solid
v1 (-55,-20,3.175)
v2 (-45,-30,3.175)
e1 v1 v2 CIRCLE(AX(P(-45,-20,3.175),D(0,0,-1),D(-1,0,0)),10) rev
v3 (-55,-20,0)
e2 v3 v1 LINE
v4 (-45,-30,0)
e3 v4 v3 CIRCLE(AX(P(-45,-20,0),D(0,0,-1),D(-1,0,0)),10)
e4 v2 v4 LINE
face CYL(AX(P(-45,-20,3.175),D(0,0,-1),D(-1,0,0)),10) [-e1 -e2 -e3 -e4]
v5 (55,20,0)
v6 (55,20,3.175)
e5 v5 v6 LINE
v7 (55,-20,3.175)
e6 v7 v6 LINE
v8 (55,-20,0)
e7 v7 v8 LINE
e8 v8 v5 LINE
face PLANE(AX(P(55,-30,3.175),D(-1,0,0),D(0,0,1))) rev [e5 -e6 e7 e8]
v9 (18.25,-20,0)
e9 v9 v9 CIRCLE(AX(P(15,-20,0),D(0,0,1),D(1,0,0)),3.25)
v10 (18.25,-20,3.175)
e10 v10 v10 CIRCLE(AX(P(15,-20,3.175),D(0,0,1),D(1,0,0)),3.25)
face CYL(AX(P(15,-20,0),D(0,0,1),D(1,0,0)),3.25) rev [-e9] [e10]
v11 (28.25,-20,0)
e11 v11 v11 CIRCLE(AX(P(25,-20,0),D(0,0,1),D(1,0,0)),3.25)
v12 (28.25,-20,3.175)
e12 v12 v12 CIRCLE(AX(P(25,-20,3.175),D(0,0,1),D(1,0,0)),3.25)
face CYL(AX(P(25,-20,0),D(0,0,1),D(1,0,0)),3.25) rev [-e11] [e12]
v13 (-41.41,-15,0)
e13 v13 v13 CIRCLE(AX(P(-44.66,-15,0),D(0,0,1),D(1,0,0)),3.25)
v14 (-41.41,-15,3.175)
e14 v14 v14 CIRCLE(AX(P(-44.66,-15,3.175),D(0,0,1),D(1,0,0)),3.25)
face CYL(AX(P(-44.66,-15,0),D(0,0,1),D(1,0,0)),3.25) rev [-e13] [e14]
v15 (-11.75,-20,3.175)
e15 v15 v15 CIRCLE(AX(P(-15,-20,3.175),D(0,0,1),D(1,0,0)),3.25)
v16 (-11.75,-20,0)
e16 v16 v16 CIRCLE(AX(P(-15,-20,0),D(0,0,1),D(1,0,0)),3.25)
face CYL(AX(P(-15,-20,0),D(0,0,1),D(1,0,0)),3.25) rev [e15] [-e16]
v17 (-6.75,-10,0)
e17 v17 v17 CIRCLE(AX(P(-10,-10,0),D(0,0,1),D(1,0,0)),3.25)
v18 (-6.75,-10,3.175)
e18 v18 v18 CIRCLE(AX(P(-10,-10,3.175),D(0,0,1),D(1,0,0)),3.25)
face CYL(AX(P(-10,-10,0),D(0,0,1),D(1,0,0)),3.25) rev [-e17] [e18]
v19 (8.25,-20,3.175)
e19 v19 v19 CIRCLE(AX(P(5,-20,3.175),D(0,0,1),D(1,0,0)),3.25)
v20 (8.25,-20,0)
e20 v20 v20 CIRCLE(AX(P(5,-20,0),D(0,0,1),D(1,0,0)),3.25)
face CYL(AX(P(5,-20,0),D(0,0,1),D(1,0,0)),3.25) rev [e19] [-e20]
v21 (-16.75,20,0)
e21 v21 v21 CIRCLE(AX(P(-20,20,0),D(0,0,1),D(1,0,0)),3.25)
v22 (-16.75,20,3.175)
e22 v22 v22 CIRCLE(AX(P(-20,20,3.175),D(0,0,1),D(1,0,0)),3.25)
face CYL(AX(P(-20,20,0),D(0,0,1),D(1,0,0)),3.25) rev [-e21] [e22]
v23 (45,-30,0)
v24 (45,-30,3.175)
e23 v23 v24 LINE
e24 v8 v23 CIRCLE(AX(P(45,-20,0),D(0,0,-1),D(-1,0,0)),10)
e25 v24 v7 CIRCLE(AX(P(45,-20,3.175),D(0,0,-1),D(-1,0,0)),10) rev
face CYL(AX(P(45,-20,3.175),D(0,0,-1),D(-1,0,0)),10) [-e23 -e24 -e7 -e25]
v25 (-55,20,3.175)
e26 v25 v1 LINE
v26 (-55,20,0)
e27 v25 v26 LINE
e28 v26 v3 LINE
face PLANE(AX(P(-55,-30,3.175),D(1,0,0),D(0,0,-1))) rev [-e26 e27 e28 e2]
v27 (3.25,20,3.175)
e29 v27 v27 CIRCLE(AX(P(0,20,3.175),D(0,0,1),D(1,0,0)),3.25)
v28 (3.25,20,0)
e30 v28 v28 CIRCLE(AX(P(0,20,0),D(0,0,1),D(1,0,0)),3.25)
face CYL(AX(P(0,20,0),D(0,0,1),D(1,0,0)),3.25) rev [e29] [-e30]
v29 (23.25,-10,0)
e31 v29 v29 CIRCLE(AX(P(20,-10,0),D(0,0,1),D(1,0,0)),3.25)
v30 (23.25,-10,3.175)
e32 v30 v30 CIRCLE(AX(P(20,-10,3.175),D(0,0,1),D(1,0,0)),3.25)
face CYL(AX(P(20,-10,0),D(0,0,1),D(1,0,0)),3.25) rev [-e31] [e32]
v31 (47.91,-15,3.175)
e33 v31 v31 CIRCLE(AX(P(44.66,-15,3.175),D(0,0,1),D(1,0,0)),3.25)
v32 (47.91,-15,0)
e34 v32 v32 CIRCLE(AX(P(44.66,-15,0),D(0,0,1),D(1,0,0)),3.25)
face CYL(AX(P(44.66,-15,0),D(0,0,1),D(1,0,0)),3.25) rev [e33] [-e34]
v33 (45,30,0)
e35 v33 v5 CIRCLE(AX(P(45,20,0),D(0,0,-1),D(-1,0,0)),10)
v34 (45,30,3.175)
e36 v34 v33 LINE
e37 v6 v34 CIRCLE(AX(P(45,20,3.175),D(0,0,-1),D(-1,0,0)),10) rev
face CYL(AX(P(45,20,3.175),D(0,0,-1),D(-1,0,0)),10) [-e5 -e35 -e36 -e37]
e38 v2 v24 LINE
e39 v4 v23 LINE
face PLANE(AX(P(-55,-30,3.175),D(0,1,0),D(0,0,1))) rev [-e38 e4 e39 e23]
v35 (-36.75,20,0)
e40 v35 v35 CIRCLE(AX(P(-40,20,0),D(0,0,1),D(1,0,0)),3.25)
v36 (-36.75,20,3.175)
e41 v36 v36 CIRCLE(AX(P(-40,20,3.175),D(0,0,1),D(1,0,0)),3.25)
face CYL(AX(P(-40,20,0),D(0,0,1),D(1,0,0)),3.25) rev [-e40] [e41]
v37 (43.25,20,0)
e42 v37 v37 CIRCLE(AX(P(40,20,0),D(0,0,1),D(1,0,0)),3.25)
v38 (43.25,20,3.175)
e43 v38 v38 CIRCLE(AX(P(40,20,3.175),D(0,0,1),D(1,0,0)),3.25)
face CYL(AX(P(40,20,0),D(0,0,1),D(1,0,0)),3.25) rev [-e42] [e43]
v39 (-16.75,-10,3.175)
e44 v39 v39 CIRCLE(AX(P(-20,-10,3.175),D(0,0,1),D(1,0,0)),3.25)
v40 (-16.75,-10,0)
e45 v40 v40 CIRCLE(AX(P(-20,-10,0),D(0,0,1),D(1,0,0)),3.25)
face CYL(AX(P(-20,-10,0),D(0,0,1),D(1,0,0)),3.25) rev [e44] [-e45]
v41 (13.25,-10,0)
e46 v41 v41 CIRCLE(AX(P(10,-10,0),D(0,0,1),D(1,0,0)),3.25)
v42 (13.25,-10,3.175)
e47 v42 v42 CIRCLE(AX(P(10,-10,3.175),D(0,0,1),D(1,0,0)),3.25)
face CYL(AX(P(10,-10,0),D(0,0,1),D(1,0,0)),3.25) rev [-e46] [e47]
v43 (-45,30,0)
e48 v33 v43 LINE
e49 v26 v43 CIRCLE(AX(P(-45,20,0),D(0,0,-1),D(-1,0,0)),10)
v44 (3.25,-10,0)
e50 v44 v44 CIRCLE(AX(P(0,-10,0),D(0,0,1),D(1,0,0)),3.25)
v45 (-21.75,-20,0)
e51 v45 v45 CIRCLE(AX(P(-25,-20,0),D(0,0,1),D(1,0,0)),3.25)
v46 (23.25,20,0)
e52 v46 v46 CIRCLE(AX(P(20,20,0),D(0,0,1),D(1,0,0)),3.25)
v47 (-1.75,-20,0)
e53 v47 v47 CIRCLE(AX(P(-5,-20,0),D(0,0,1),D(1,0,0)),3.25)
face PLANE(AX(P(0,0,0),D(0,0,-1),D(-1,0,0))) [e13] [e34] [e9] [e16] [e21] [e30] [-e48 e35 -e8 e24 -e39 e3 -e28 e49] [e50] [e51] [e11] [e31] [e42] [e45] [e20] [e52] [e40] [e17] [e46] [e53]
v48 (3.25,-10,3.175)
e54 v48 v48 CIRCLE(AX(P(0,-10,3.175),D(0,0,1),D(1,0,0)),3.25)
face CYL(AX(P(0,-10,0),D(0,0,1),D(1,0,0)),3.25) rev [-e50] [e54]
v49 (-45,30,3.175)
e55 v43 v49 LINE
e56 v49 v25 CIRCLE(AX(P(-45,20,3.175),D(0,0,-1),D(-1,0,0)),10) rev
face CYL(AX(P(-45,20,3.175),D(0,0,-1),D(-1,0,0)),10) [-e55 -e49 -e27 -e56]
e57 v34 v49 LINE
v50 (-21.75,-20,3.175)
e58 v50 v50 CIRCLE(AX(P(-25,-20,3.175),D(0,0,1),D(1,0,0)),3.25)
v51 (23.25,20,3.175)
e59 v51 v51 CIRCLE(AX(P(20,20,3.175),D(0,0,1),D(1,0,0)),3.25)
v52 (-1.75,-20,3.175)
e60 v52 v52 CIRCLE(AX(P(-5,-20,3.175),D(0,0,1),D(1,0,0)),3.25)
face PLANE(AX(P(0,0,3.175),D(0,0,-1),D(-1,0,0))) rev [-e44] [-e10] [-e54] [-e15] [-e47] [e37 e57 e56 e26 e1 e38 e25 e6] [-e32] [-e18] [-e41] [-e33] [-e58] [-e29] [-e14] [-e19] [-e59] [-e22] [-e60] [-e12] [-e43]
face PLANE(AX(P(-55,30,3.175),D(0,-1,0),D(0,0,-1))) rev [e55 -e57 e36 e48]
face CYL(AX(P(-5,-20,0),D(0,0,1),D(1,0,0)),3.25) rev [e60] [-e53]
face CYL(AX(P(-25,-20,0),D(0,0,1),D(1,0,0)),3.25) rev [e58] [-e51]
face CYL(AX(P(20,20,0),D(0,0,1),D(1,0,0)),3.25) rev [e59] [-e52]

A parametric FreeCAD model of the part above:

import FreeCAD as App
import Part
import Sketcher


def edges_at(feature, points):
    """Names of the edges that pass closest to the given points."""
    edges = feature.Shape.Edges
    near = lambda p: min(range(len(edges)), key=lambda i: edges[i].distToShape(Part.Vertex(*p))[0])
    return sorted({f"Edge{near(p) + 1}" for p in points})


def add_polygon(sketch, points):
    """Adds a closed chain of lines whose ends are joined by coincident constraints."""
    first, n = sketch.GeometryCount, len(points)
    for a, b in zip(points, points[1:] + points[:1]):
        sketch.addGeometry(Part.LineSegment(App.Vector(*a, 0), App.Vector(*b, 0)), False)
    for i in range(n):
        sketch.addConstraint(Sketcher.Constraint("Coincident", first + i, 2, first + (i + 1) % n, 1))

doc = App.newDocument("Part")
params = doc.addObject("Spreadsheet::Sheet", "Params")
for row, (alias, value) in enumerate([
    ("sketch1_width", "110 mm"),
    ("sketch1_height", "60 mm"),
    ("pad1_length", "3.175 mm"),
    ("sketch2_diameter", "6.5 mm"),
    ("fillet_radius", "10 mm"),
], start=1):
    params.set(f"A{row}", alias)
    params.set(f"B{row}", "=" + value)
    params.setAlias(f"B{row}", alias)

body = doc.addObject("PartDesign::Body", "Body")

sketch1 = doc.addObject("Sketcher::SketchObject", "Sketch")
body.addObject(sketch1)
sketch1.AttachmentSupport = (doc.XY_Plane, [""])
sketch1.MapMode = "FlatFace"
add_polygon(sketch1, [(-55, 30), (-55, -30), (55, -30), (55, 30)])
sketch1.addConstraint(Sketcher.Constraint("Vertical", 0))
sketch1.addConstraint(Sketcher.Constraint("Horizontal", 1))
sketch1.addConstraint(Sketcher.Constraint("Vertical", 2))
sketch1.addConstraint(Sketcher.Constraint("Horizontal", 3))
sketch1.addConstraint(Sketcher.Constraint("Symmetric", 0, 2, 2, 2, -1, 1))
sketch1.addConstraint(Sketcher.Constraint("DistanceX", 1, 1, 1, 2, 110.0))
sketch1.addConstraint(Sketcher.Constraint("DistanceY", 0, 2, 0, 1, 60.0))
sketch1.setExpression("Constraints[9]", "Params.sketch1_width")
sketch1.setExpression("Constraints[10]", "Params.sketch1_height")
pad1 = doc.addObject("PartDesign::Pad", "Pad")
body.addObject(pad1)
pad1.Profile = sketch1
pad1.setExpression("Length", "Params.pad1_length")

sketch2 = doc.addObject("Sketcher::SketchObject", "Sketch001")
body.addObject(sketch2)
sketch2.AttachmentSupport = (doc.XY_Plane, [""])
sketch2.MapMode = "FlatFace"
sketch2.AttachmentOffset = App.Placement(App.Vector(0, 0, 3.175), App.Rotation())
sketch2.addGeometry(Part.Circle(App.Vector(-40, 20, 0), App.Vector(0, 0, 1), 3.2), False)
sketch2.addGeometry(Part.Circle(App.Vector(40, 20, 0), App.Vector(0, 0, 1), 3.2), False)
sketch2.addGeometry(Part.Circle(App.Vector(-20, 20, 0), App.Vector(0, 0, 1), 3.2), False)
sketch2.addGeometry(Part.Circle(App.Vector(0, 20, 0), App.Vector(0, 0, 1), 3.2), False)
sketch2.addGeometry(Part.Circle(App.Vector(20, 20, 0), App.Vector(0, 0, 1), 3.2), False)
sketch2.addGeometry(Part.Circle(App.Vector(44.7, -15, 0), App.Vector(0, 0, 1), 3.2), False)
sketch2.addGeometry(Part.Circle(App.Vector(5, -20, 0), App.Vector(0, 0, 1), 3.2), False)
sketch2.addGeometry(Part.Circle(App.Vector(0, -10, 0), App.Vector(0, 0, 1), 3.2), False)
sketch2.addGeometry(Part.Circle(App.Vector(-5, -20, 0), App.Vector(0, 0, 1), 3.2), False)
sketch2.addGeometry(Part.Circle(App.Vector(-10, -10, 0), App.Vector(0, 0, 1), 3.2), False)
sketch2.addGeometry(Part.Circle(App.Vector(-15, -20, 0), App.Vector(0, 0, 1), 3.2), False)
sketch2.addGeometry(Part.Circle(App.Vector(10, -10, 0), App.Vector(0, 0, 1), 3.2), False)
sketch2.addGeometry(Part.Circle(App.Vector(-20, -10, 0), App.Vector(0, 0, 1), 3.2), False)
sketch2.addGeometry(Part.Circle(App.Vector(-44.7, -15, 0), App.Vector(0, 0, 1), 3.2), False)
sketch2.addGeometry(Part.Circle(App.Vector(20, -10, 0), App.Vector(0, 0, 1), 3.2), False)
sketch2.addGeometry(Part.Circle(App.Vector(15, -20, 0), App.Vector(0, 0, 1), 3.2), False)
sketch2.addGeometry(Part.Circle(App.Vector(-25, -20, 0), App.Vector(0, 0, 1), 3.2), False)
sketch2.addGeometry(Part.Circle(App.Vector(25, -20, 0), App.Vector(0, 0, 1), 3.2), False)
sketch2.addConstraint(Sketcher.Constraint("Equal", 0, 1))
sketch2.addConstraint(Sketcher.Constraint("Equal", 1, 2))
sketch2.addConstraint(Sketcher.Constraint("Equal", 2, 3))
sketch2.addConstraint(Sketcher.Constraint("Equal", 3, 4))
sketch2.addConstraint(Sketcher.Constraint("Equal", 4, 5))
sketch2.addConstraint(Sketcher.Constraint("Equal", 5, 6))
sketch2.addConstraint(Sketcher.Constraint("Equal", 6, 7))
sketch2.addConstraint(Sketcher.Constraint("Equal", 7, 8))
sketch2.addConstraint(Sketcher.Constraint("Equal", 8, 9))
sketch2.addConstraint(Sketcher.Constraint("Equal", 9, 10))
sketch2.addConstraint(Sketcher.Constraint("Equal", 10, 11))
sketch2.addConstraint(Sketcher.Constraint("Equal", 11, 12))
sketch2.addConstraint(Sketcher.Constraint("Equal", 12, 13))
sketch2.addConstraint(Sketcher.Constraint("Equal", 13, 14))
sketch2.addConstraint(Sketcher.Constraint("Equal", 14, 15))
sketch2.addConstraint(Sketcher.Constraint("Equal", 15, 16))
sketch2.addConstraint(Sketcher.Constraint("Equal", 16, 17))
sketch2.addConstraint(Sketcher.Constraint("Symmetric", 0, 3, 1, 3, -2))
sketch2.addConstraint(Sketcher.Constraint("Symmetric", 2, 3, 4, 3, -2))
sketch2.addConstraint(Sketcher.Constraint("Symmetric", 6, 3, 8, 3, -2))
sketch2.addConstraint(Sketcher.Constraint("Symmetric", 9, 3, 11, 3, -2))
sketch2.addConstraint(Sketcher.Constraint("Symmetric", 5, 3, 13, 3, -2))
sketch2.addConstraint(Sketcher.Constraint("Symmetric", 12, 3, 14, 3, -2))
sketch2.addConstraint(Sketcher.Constraint("Symmetric", 10, 3, 15, 3, -2))
sketch2.addConstraint(Sketcher.Constraint("Symmetric", 16, 3, 17, 3, -2))
sketch2.addConstraint(Sketcher.Constraint("PointOnObject", 3, 3, -2))
sketch2.addConstraint(Sketcher.Constraint("PointOnObject", 7, 3, -2))
sketch2.addConstraint(Sketcher.Constraint("Horizontal", 1, 3, 2, 3))
sketch2.addConstraint(Sketcher.Constraint("Horizontal", 2, 3, 3, 3))
sketch2.addConstraint(Sketcher.Constraint("Horizontal", 7, 3, 9, 3))
sketch2.addConstraint(Sketcher.Constraint("Horizontal", 8, 3, 10, 3))
sketch2.addConstraint(Sketcher.Constraint("Horizontal", 11, 3, 12, 3))
sketch2.addConstraint(Sketcher.Constraint("Horizontal", 15, 3, 16, 3))
sketch2.addConstraint(Sketcher.Constraint("Vertical", 2, 3, 12, 3))
sketch2.addConstraint(Sketcher.Constraint("Diameter", 0, 6.5))
sketch2.addConstraint(Sketcher.Constraint("DistanceX", 0, 3, -1, 1, 40.0))
sketch2.addConstraint(Sketcher.Constraint("DistanceY", -1, 1, 0, 3, 20.0))
sketch2.addConstraint(Sketcher.Constraint("DistanceX", 2, 3, -1, 1, 20.0))
sketch2.addConstraint(Sketcher.Constraint("DistanceY", 5, 3, -1, 1, 15.0))
sketch2.addConstraint(Sketcher.Constraint("DistanceX", -1, 1, 6, 3, 5.0))
sketch2.addConstraint(Sketcher.Constraint("DistanceY", 6, 3, -1, 1, 20.0))
sketch2.addConstraint(Sketcher.Constraint("DistanceY", 7, 3, -1, 1, 10.0))
sketch2.addConstraint(Sketcher.Constraint("DistanceX", 9, 3, -1, 1, 10.0))
sketch2.addConstraint(Sketcher.Constraint("DistanceX", 10, 3, -1, 1, 15.0))
sketch2.addConstraint(Sketcher.Constraint("DistanceX", 16, 3, -1, 1, 25.0))
sketch2.addConstraint(Sketcher.Constraint("DistanceX", -1, 1, 5, 3, 44.66))
sketch2.setExpression("Constraints[34]", "Params.sketch2_diameter")
pocket1 = doc.addObject("PartDesign::Pocket", "Pocket")
body.addObject(pocket1)
pocket1.Profile = sketch2
pocket1.Type = "ThroughAll"
doc.recompute()

fillet = doc.addObject("PartDesign::Fillet", "Fillet")
body.addObject(fillet)
fillet.Base = (pocket1, edges_at(pocket1, [
    (55, -30, 1.587),
    (-55, -30, 1.587),
    (-55, 30, 1.587),
    (55, 30, 1.587),
]))
fillet.setExpression("Radius", "Params.fillet_radius")

doc.recompute()
